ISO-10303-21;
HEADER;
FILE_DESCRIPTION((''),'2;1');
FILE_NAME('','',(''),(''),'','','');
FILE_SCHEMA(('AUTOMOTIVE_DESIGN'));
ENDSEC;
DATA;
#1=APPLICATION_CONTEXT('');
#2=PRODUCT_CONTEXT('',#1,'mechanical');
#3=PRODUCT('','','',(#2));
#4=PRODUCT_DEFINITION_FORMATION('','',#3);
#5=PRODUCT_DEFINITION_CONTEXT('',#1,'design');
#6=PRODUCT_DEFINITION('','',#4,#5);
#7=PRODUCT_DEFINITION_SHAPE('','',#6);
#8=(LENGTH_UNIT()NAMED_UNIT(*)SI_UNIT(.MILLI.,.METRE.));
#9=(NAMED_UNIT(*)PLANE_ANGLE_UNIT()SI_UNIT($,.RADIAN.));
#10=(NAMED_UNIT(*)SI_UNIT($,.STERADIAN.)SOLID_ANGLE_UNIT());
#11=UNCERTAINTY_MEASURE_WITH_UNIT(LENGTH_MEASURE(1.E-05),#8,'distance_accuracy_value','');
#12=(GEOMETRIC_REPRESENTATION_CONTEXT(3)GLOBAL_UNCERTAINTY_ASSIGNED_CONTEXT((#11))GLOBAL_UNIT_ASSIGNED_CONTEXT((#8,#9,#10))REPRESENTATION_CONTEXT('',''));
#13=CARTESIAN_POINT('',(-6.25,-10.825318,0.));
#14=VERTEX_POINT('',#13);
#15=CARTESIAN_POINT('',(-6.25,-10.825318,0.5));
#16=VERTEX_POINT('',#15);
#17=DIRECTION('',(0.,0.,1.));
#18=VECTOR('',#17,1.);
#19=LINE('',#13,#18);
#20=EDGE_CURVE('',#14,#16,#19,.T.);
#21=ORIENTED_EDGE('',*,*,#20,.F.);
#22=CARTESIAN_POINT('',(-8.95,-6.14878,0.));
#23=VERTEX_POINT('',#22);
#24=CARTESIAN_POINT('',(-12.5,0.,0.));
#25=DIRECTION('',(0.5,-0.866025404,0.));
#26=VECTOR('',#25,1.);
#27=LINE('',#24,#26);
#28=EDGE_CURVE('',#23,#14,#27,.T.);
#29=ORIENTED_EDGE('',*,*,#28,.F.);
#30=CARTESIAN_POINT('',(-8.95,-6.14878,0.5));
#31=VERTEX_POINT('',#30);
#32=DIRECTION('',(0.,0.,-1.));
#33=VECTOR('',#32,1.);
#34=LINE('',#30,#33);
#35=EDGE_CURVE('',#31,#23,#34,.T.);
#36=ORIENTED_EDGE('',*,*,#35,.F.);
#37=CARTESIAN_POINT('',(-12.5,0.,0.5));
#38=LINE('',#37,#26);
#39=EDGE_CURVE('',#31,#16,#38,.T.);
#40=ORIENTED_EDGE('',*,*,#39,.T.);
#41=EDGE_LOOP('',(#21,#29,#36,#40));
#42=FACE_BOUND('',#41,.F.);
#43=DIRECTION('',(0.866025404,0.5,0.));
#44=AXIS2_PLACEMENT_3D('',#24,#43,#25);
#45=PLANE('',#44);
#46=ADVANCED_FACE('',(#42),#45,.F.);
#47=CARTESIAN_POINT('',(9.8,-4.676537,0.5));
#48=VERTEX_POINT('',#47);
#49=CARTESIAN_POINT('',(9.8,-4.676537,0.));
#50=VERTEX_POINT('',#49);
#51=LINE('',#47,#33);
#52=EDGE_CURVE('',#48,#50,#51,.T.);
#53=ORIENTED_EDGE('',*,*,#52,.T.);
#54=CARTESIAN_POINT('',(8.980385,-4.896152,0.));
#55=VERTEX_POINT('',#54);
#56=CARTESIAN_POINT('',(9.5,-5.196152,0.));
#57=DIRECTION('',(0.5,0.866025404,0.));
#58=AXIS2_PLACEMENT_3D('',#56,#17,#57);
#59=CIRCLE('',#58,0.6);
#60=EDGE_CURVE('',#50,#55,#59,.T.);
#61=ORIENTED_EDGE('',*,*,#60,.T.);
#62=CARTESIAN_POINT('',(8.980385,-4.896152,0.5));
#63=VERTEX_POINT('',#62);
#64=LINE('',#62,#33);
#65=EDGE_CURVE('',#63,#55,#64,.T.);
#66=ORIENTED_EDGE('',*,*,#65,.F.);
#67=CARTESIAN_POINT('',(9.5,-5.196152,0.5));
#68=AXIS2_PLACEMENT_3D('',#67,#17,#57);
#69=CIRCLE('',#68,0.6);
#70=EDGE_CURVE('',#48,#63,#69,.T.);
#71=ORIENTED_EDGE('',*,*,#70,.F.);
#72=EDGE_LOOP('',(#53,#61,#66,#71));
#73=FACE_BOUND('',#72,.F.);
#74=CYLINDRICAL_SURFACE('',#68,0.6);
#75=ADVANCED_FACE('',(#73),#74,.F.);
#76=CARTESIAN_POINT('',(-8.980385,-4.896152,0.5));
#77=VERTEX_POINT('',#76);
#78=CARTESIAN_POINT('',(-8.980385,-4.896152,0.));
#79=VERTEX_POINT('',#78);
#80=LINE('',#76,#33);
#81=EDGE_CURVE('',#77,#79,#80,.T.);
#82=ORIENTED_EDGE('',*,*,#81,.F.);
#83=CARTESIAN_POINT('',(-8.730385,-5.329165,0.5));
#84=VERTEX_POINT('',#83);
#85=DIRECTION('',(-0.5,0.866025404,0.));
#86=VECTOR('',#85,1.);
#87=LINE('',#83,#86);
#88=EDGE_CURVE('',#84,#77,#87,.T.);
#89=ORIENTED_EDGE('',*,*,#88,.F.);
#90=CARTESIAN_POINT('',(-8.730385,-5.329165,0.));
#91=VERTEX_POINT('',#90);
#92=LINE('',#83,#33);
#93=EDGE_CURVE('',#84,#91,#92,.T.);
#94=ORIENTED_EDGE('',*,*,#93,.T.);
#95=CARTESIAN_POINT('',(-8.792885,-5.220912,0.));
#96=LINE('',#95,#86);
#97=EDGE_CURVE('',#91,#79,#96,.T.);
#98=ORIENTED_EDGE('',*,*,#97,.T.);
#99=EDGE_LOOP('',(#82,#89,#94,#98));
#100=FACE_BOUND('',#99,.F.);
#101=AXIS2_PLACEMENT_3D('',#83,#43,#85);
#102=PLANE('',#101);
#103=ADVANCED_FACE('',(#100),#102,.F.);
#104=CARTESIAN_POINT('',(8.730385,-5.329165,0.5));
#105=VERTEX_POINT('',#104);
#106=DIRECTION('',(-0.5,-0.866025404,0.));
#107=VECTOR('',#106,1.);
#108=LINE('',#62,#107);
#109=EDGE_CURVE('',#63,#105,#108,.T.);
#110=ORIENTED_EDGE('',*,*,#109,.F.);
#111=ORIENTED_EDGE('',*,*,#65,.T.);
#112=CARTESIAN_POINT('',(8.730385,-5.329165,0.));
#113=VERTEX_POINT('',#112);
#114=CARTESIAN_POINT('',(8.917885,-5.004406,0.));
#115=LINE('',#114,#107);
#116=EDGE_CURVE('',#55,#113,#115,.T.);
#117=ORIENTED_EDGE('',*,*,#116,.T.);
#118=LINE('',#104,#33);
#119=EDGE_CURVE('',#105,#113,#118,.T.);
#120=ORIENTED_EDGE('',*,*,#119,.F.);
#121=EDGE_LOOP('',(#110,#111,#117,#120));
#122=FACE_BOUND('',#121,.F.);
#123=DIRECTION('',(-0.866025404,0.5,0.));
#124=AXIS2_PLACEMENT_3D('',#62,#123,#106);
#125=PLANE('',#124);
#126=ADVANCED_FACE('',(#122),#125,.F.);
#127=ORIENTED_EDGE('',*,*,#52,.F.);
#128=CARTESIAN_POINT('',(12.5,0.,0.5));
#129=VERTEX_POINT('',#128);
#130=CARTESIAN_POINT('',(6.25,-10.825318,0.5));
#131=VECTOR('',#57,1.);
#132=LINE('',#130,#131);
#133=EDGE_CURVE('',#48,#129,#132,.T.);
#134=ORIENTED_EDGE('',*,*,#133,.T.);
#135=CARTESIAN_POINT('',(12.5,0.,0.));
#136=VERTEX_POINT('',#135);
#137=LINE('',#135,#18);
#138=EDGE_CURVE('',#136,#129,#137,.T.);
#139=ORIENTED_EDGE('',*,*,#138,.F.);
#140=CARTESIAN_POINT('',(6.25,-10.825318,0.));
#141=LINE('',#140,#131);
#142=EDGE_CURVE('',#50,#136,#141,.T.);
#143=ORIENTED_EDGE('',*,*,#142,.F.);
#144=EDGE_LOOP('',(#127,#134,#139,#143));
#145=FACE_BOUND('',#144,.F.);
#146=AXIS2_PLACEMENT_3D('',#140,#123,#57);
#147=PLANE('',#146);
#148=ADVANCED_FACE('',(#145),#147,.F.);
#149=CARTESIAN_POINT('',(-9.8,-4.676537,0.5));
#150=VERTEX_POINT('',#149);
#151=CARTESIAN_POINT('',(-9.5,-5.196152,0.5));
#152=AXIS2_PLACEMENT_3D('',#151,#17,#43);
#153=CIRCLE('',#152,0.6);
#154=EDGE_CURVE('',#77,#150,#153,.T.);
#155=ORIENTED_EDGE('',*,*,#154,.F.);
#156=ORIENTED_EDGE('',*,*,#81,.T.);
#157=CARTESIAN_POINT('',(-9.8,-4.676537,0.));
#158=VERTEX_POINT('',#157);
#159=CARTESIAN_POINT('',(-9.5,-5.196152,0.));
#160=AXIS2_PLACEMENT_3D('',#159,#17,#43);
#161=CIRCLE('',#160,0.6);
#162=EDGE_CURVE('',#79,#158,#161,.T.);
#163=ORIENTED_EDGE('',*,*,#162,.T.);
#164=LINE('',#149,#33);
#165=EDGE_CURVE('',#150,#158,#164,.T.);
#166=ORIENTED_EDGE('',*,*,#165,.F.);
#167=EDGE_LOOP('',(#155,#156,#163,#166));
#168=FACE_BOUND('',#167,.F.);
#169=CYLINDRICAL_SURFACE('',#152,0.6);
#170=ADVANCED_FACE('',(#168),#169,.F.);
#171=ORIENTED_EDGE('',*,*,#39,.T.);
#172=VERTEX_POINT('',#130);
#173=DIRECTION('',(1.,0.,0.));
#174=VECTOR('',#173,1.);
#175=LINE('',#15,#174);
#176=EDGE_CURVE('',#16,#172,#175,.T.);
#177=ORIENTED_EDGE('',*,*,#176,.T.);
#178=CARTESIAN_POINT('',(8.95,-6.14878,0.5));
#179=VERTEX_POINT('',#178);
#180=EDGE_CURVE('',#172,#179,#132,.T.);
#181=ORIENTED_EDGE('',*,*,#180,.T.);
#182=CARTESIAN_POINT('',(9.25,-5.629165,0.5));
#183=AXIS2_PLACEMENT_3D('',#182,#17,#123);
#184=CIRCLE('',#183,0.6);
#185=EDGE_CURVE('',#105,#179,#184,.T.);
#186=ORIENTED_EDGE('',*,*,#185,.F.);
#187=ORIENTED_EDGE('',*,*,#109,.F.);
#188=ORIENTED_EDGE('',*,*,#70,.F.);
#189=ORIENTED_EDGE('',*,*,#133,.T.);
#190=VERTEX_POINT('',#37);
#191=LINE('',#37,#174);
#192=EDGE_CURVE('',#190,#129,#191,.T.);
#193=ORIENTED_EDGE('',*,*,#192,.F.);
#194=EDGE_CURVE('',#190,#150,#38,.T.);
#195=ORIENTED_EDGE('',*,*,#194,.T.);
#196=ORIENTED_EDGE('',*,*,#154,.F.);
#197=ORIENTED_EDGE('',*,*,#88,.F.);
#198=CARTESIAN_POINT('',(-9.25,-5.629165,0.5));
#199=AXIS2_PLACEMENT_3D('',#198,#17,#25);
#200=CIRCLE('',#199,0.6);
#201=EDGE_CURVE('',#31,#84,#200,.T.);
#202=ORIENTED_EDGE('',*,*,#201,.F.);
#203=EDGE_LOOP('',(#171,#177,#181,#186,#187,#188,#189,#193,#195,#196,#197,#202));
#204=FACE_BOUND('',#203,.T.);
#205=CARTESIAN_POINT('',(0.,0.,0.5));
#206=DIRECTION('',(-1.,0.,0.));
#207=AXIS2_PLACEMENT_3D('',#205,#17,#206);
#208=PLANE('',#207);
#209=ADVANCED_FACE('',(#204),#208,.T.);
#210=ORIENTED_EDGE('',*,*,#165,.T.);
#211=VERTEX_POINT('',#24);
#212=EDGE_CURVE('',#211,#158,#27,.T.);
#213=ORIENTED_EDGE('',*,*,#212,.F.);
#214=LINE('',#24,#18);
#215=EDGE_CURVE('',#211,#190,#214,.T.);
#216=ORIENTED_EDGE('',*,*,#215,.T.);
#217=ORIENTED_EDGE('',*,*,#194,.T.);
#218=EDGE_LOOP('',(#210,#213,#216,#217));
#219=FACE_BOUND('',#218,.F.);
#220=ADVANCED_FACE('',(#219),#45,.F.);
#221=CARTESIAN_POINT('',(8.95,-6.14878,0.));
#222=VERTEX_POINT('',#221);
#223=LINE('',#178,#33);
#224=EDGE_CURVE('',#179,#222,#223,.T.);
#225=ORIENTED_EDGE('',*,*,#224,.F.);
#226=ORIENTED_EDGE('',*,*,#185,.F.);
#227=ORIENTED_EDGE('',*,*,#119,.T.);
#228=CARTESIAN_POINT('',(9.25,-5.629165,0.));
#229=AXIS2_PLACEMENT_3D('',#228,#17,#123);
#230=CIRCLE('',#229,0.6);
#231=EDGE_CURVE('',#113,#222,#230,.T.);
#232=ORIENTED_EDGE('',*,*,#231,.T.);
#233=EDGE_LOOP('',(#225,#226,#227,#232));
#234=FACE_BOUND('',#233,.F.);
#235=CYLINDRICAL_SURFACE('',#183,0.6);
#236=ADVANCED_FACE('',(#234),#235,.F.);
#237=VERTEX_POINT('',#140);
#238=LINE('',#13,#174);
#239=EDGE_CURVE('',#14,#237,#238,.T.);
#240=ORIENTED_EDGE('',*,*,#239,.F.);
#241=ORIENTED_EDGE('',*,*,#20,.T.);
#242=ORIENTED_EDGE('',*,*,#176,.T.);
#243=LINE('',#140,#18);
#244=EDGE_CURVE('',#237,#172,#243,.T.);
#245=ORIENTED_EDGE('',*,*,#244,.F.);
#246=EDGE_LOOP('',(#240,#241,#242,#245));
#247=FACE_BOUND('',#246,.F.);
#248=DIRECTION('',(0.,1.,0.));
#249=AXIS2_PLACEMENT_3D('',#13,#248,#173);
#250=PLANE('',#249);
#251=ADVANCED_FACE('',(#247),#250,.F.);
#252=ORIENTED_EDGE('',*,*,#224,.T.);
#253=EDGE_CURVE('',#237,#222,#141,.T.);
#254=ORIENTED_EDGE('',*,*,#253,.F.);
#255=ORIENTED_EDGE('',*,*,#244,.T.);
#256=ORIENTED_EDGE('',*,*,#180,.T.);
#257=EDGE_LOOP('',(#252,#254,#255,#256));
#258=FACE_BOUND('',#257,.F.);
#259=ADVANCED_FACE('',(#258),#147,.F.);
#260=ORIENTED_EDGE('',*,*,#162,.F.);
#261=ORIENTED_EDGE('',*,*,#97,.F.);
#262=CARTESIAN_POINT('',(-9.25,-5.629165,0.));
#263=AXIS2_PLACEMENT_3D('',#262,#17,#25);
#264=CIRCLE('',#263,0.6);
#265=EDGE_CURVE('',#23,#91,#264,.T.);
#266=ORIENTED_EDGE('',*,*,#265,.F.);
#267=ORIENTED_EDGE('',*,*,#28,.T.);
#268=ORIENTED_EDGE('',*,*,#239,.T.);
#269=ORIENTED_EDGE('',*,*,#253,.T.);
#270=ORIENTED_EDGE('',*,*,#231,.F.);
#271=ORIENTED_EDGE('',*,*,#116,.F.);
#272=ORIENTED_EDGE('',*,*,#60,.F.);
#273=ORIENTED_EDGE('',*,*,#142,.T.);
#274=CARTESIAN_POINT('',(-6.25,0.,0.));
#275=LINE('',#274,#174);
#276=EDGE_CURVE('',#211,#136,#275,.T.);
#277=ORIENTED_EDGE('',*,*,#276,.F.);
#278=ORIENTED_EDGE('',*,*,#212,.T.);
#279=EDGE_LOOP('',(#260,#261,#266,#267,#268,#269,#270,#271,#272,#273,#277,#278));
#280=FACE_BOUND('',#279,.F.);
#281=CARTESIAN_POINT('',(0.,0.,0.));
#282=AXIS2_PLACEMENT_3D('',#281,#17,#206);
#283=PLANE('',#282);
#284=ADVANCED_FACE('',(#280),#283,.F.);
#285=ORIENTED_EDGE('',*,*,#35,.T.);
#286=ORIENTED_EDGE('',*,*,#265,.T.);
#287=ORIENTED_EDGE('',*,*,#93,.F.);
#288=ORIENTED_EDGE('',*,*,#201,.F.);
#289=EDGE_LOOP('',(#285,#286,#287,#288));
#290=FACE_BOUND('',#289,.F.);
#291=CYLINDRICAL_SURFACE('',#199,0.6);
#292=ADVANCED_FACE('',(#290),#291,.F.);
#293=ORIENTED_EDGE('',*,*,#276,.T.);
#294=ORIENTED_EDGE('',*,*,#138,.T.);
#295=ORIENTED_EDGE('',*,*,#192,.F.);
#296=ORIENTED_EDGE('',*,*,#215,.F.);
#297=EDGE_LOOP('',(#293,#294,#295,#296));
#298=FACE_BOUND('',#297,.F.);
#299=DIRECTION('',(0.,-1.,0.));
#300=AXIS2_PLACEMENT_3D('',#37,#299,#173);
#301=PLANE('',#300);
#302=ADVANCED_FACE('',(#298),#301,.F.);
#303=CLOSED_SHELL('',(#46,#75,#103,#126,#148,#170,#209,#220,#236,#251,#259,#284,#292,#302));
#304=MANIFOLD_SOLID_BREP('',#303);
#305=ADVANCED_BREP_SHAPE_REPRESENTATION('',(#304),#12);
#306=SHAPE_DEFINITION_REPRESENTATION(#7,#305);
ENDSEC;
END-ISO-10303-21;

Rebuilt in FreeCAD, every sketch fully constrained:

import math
import FreeCAD as App
import Part
import Sketcher
from FreeCAD import Vector
Q = App.Units.Quantity


def add_polygon(sketch, points):
    """Adds a closed chain of lines whose ends are joined by coincident constraints."""
    first, n = sketch.GeometryCount, len(points)
    for a, b in zip(points, points[1:] + points[:1]):
        sketch.addGeometry(Part.LineSegment(App.Vector(*a, 0), App.Vector(*b, 0)), False)
    for i in range(n):
        sketch.addConstraint(Sketcher.Constraint("Coincident", first + i, 2, first + (i + 1) % n, 1))

doc = App.newDocument("Part")
body = doc.addObject("PartDesign::Body", "Body")

sketch1 = body.newObject("Sketcher::SketchObject", "Sketch")
sketch1.AttachmentSupport = (doc.getObject("XY_Plane"), [""])
sketch1.MapMode = "FlatFace"
add_polygon(sketch1, [(6, -11), (12, 0), (6, 11), (-6, 11), (-12, 0), (-6, -11)])
sketch1.addConstraint(Sketcher.Constraint("Horizontal", 2))
sketch1.addConstraint(Sketcher.Constraint("Horizontal", 5))
sketch1.addConstraint(Sketcher.Constraint("Symmetric", 0, 2, 3, 2, -1, 1))
sketch1.addConstraint(Sketcher.Constraint("Symmetric", 1, 2, 4, 2, -1, 1))
sketch1.addConstraint(Sketcher.Constraint("PointOnObject", 0, 2, -1))
sketch1.addConstraint(Sketcher.Constraint("Parallel", 0, 3))
sketch1.addConstraint(Sketcher.Constraint("Vertical", 2, 2, 4, 2))
sketch1.addConstraint(Sketcher.Constraint("Angle", 0, Q("60 deg")))
sketch1.addConstraint(Sketcher.Constraint("DistanceX", 2, 2, 2, 1, Q("12.5 mm")))
sketch1.addConstraint(Sketcher.Constraint("DistanceX", 3, 2, 0, 2, Q("25 mm")))
pad1 = body.newObject("PartDesign::Pad", "Pad")
pad1.Profile = sketch1
pad1.Length = 0.5

sketch2 = body.newObject("Sketcher::SketchObject", "Sketch001")
sketch2.AttachmentSupport = (doc.getObject("XY_Plane"), [""])
sketch2.MapMode = "FlatFace"
sketch2.AttachmentOffset = App.Placement(Vector(0, 0, 0.5), App.Rotation())
sketch2.addGeometry(Part.ArcOfCircle(Part.Circle(Vector(0.2, -10.8, 0), Vector(0, 0, 1), 0.6), math.radians(0), math.radians(90)), False)
sketch2.addGeometry(Part.LineSegment(Vector(0.2, -10.2, 0), Vector(-0.2, -10.2, 0)), False)
sketch2.addGeometry(Part.ArcOfCircle(Part.Circle(Vector(-0.2, -10.8, 0), Vector(0, 0, 1), 0.6), math.radians(90), math.radians(180)), False)
sketch2.addGeometry(Part.LineSegment(Vector(-0.8, -10.8, 0), Vector(0.8, -10.8, 0)), False)
sketch2.addGeometry(Part.LineSegment(Vector(8.7, 5.3, 0), Vector(9, 4.9, 0)), False)
sketch2.addGeometry(Part.ArcOfCircle(Part.Circle(Vector(9.5, 5.2, 0), Vector(0, 0, 1), 0.6), math.radians(-150), math.radians(-60)), False)
sketch2.addGeometry(Part.LineSegment(Vector(9.8, 4.7, 0), Vector(8.9, 6.1, 0)), False)
sketch2.addGeometry(Part.ArcOfCircle(Part.Circle(Vector(9.2, 5.6, 0), Vector(0, 0, 1), 0.6), math.radians(120), math.radians(210)), False)
sketch2.addGeometry(Part.LineSegment(Vector(-9, 4.9, 0), Vector(-8.7, 5.3, 0)), False)
sketch2.addGeometry(Part.ArcOfCircle(Part.Circle(Vector(-9.2, 5.6, 0), Vector(0, 0, 1), 0.6), math.radians(-30), math.radians(60)), False)
sketch2.addGeometry(Part.LineSegment(Vector(-8.9, 6.1, 0), Vector(-9.8, 4.7, 0)), False)
sketch2.addGeometry(Part.ArcOfCircle(Part.Circle(Vector(-9.5, 5.2, 0), Vector(0, 0, 1), 0.6), math.radians(-120), math.radians(-30)), False)
sketch2.addConstraint(Sketcher.Constraint("Tangent", 0, 2, 1, 1))
sketch2.addConstraint(Sketcher.Constraint("Tangent", 1, 2, 2, 1))
sketch2.addConstraint(Sketcher.Constraint("Coincident", 2, 2, 3, 1))
sketch2.addConstraint(Sketcher.Constraint("Coincident", 3, 2, 0, 1))
sketch2.addConstraint(Sketcher.Constraint("Tangent", 4, 2, 5, 1))
sketch2.addConstraint(Sketcher.Constraint("Coincident", 5, 2, 6, 1))
sketch2.addConstraint(Sketcher.Constraint("Coincident", 6, 2, 7, 1))
sketch2.addConstraint(Sketcher.Constraint("Tangent", 7, 2, 4, 1))
sketch2.addConstraint(Sketcher.Constraint("Tangent", 8, 2, 9, 1))
sketch2.addConstraint(Sketcher.Constraint("Coincident", 9, 2, 10, 1))
sketch2.addConstraint(Sketcher.Constraint("Coincident", 10, 2, 11, 1))
sketch2.addConstraint(Sketcher.Constraint("Tangent", 11, 2, 8, 1))
sketch2.addConstraint(Sketcher.Constraint("Horizontal", 1))
sketch2.addConstraint(Sketcher.Constraint("Horizontal", 3))
sketch2.addConstraint(Sketcher.Constraint("Equal", 0, 2))
sketch2.addConstraint(Sketcher.Constraint("Equal", 2, 5))
sketch2.addConstraint(Sketcher.Constraint("Equal", 5, 7))
sketch2.addConstraint(Sketcher.Constraint("Equal", 7, 9))
sketch2.addConstraint(Sketcher.Constraint("Equal", 9, 11))
sketch2.addConstraint(Sketcher.Constraint("Symmetric", 7, 3, 9, 3, -2))
sketch2.addConstraint(Sketcher.Constraint("Symmetric", 5, 3, 11, 3, -2))
sketch2.addConstraint(Sketcher.Constraint("Parallel", 4, 6))
sketch2.addConstraint(Sketcher.Constraint("Parallel", 8, 10))
sketch2.addConstraint(Sketcher.Constraint("Horizontal", 0, 3, 2, 2))
sketch2.addConstraint(Sketcher.Constraint("Horizontal", 6, 2, 9, 2))
sketch2.addConstraint(Sketcher.Constraint("Radius", 0, Q("0.6 mm")))
sketch2.addConstraint(Sketcher.Constraint("Angle", 4, Q("-60 deg")))
sketch2.addConstraint(Sketcher.Constraint("DistanceX", 1, 2, 1, 1, Q("0.5 mm")))
sketch2.addConstraint(Sketcher.Constraint("DistanceX", 0, 3, 7, 3, Q("9 mm")))
sketch2.addConstraint(Sketcher.Constraint("DistanceX", 9, 3, 2, 3, Q("9 mm")))
sketch2.addConstraint(Sketcher.Constraint("DistanceX", 11, 3, 5, 3, Q("19 mm")))
sketch2.addConstraint(Sketcher.Constraint("DistanceX", -1, 1, 5, 2, Q("9.8 mm")))
sketch2.addConstraint(Sketcher.Constraint("DistanceY", -1, 1, 6, 2, Q("6.14878 mm")))
sketch2.addConstraint(Sketcher.Constraint("DistanceY", 0, 3, 5, 3, Q("16.02147 mm")))
pocket1 = body.newObject("PartDesign::Pocket", "Pocket")
pocket1.Profile = sketch2
pocket1.Type = "ThroughAll"

sketch3 = body.newObject("Sketcher::SketchObject", "Sketch002")
sketch3.AttachmentSupport = (doc.getObject("XY_Plane"), [""])
sketch3.MapMode = "FlatFace"
sketch3.AttachmentOffset = App.Placement(Vector(0, 0, 0.5), App.Rotation())
add_polygon(sketch3, [(12, 0), (-12, 0), (-6, -11), (6, -11)])
sketch3.addConstraint(Sketcher.Constraint("Horizontal", 0))
sketch3.addConstraint(Sketcher.Constraint("Horizontal", 2))
sketch3.addConstraint(Sketcher.Constraint("Symmetric", 0, 2, 3, 2, -1, 1))
sketch3.addConstraint(Sketcher.Constraint("Equal", 1, 3))
sketch3.addConstraint(Sketcher.Constraint("DistanceX", 0, 2, 0, 1, Q("25 mm")))
sketch3.addConstraint(Sketcher.Constraint("Angle", 1, Q("-60 deg")))
sketch3.addConstraint(Sketcher.Constraint("DistanceX", 2, 1, 2, 2, Q("12.5 mm")))
pocket2 = body.newObject("PartDesign::Pocket", "Pocket001")
pocket2.Profile = sketch3
pocket2.Type = "ThroughAll"
body2 = doc.addObject("PartDesign::Body", "Body001")
doc.recompute()

body.Placement = App.Placement(Vector(0, 0, 0), App.Rotation(Vector(0, 0, 1), 180))
boolean = body2.newObject("PartDesign::Boolean", "Boolean")
boolean.Type = "Fuse"
boolean.addObjects([body])

doc.recompute()
